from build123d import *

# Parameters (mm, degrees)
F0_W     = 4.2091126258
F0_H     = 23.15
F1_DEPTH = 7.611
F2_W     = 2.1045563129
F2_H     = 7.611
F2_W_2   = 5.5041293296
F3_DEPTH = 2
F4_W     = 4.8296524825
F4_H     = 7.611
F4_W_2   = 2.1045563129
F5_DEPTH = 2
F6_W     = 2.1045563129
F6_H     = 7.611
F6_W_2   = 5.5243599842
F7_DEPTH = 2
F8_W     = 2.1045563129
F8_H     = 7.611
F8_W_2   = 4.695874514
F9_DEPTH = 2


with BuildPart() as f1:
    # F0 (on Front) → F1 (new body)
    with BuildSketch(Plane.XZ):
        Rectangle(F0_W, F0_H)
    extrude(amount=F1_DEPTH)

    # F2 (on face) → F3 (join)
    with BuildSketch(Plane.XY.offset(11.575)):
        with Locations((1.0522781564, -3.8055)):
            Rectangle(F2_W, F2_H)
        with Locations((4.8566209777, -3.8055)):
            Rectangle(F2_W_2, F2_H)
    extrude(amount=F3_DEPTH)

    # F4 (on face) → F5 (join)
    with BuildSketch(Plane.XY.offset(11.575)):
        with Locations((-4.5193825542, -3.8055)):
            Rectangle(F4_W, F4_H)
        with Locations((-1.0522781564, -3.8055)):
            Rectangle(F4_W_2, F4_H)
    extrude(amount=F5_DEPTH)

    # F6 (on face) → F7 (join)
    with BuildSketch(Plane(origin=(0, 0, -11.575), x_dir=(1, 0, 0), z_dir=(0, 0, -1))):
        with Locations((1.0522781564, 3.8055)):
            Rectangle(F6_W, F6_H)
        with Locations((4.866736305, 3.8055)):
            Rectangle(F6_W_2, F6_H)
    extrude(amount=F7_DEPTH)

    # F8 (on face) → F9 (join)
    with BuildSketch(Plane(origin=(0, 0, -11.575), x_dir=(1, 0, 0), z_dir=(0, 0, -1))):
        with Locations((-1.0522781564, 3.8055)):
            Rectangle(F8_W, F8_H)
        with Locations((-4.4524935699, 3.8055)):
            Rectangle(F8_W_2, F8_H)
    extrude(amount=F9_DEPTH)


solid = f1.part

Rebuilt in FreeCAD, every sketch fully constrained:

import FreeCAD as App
import Part
import Sketcher
from FreeCAD import Vector


def add_polygon(sketch, points):
    """Adds a closed chain of lines whose ends are joined by coincident constraints."""
    first, n = sketch.GeometryCount, len(points)
    for a, b in zip(points, points[1:] + points[:1]):
        sketch.addGeometry(Part.LineSegment(App.Vector(*a, 0), App.Vector(*b, 0)), False)
    for i in range(n):
        sketch.addConstraint(Sketcher.Constraint("Coincident", first + i, 2, first + (i + 1) % n, 1))

doc = App.newDocument("Part")
body = doc.addObject("PartDesign::Body", "Body")

# Sketch on XZ plane
sketch1 = doc.addObject("Sketcher::SketchObject", "Sketch")
body.addObject(sketch1)
sketch1.AttachmentSupport = (doc.XZ_Plane, [""])
sketch1.MapMode = "FlatFace"
add_polygon(sketch1, [(-2.1, 11.6), (-2.1, -11.6), (2.1, -11.6), (2.1, 11.6)])  # lines 0-3
sketch1.addConstraint([
    Sketcher.Constraint("Vertical", 0),
    Sketcher.Constraint("Horizontal", 1),
    Sketcher.Constraint("Vertical", 2),
    Sketcher.Constraint("Horizontal", 3),
    Sketcher.Constraint("Symmetric", 0, 2, 2, 2, -1, 1),
    Sketcher.Constraint("DistanceY", 0, 2, 0, 1, 23.15),
    Sketcher.Constraint("DistanceX", 1, 1, 1, 2, 4.209113),
])
pad1 = doc.addObject("PartDesign::Pad", "Pad")
body.addObject(pad1)
pad1.Profile = sketch1
pad1.Length = 7.611

# Sketch on XY plane
sketch2 = doc.addObject("Sketcher::SketchObject", "Sketch001")
body.addObject(sketch2)
sketch2.AttachmentSupport = (doc.XY_Plane, [""])
sketch2.MapMode = "FlatFace"
sketch2.AttachmentOffset = App.Placement(Vector(0, 0, 11.575), App.Rotation())
add_polygon(sketch2, [(0, 0), (0, -8), (8, -8), (8, 0)])  # lines 0-3
sketch2.addConstraint([
    Sketcher.Constraint("Vertical", 0),
    Sketcher.Constraint("Horizontal", 1),
    Sketcher.Constraint("Vertical", 2),
    Sketcher.Constraint("Horizontal", 3),
    Sketcher.Constraint("Coincident", 3, 2, -1, 1),
    Sketcher.Constraint("DistanceY", 0, 2, 0, 1, 7.611),
    Sketcher.Constraint("DistanceX", 1, 1, 1, 2, 7.608686),
])
pad2 = doc.addObject("PartDesign::Pad", "Pad001")
body.addObject(pad2)
pad2.Profile = sketch2
pad2.Length = 2

# Sketch on XY plane
sketch3 = doc.addObject("Sketcher::SketchObject", "Sketch002")
body.addObject(sketch3)
sketch3.AttachmentSupport = (doc.XY_Plane, [""])
sketch3.MapMode = "FlatFace"
sketch3.AttachmentOffset = App.Placement(Vector(0, 0, 11.575), App.Rotation())
add_polygon(sketch3, [(-7, 0), (-7, -8), (0, -8), (0, 0)])  # lines 0-3
sketch3.addConstraint([
    Sketcher.Constraint("Vertical", 0),
    Sketcher.Constraint("Horizontal", 1),
    Sketcher.Constraint("Vertical", 2),
    Sketcher.Constraint("Horizontal", 3),
    Sketcher.Constraint("Coincident", 2, 2, -1, 1),
    Sketcher.Constraint("DistanceY", 0, 2, 0, 1, 7.611),
    Sketcher.Constraint("DistanceX", 1, 1, 1, 2, 6.934209),
])
pad3 = doc.addObject("PartDesign::Pad", "Pad002")
body.addObject(pad3)
pad3.Profile = sketch3
pad3.Length = 2

# Sketch on XY plane
sketch4 = doc.addObject("Sketcher::SketchObject", "Sketch003")
body.addObject(sketch4)
sketch4.AttachmentSupport = (doc.XY_Plane, [""])
sketch4.MapMode = "FlatFace"
sketch4.AttachmentOffset = App.Placement(Vector(0, 0, -11.575), App.Rotation())
add_polygon(sketch4, [(0, -8), (0, 0), (8, 0), (8, -8)])  # lines 0-3
sketch4.addConstraint([
    Sketcher.Constraint("Vertical", 0),
    Sketcher.Constraint("Horizontal", 1),
    Sketcher.Constraint("Vertical", 2),
    Sketcher.Constraint("Horizontal", 3),
    Sketcher.Constraint("Coincident", 0, 2, -1, 1),
    Sketcher.Constraint("DistanceY", 0, 1, 0, 2, 7.611),
    Sketcher.Constraint("DistanceX", 1, 1, 1, 2, 7.628916),
])
pad4 = doc.addObject("PartDesign::Pad", "Pad003")
body.addObject(pad4)
pad4.Profile = sketch4
pad4.Length = 2
pad4.Reversed = True

# Sketch on XY plane
sketch5 = doc.addObject("Sketcher::SketchObject", "Sketch004")
body.addObject(sketch5)
sketch5.AttachmentSupport = (doc.XY_Plane, [""])
sketch5.MapMode = "FlatFace"
sketch5.AttachmentOffset = App.Placement(Vector(0, 0, -11.575), App.Rotation())
add_polygon(sketch5, [(0, 0), (0, -8), (-7, -8), (-7, 0)])  # lines 0-3
sketch5.addConstraint([
    Sketcher.Constraint("Vertical", 0),
    Sketcher.Constraint("Horizontal", 1),
    Sketcher.Constraint("Vertical", 2),
    Sketcher.Constraint("Horizontal", 3),
    Sketcher.Constraint("Coincident", 3, 2, -1, 1),
    Sketcher.Constraint("DistanceY", 0, 2, 0, 1, 7.611),
    Sketcher.Constraint("DistanceX", 1, 2, 1, 1, 6.800431),
])
pad5 = doc.addObject("PartDesign::Pad", "Pad004")
body.addObject(pad5)
pad5.Profile = sketch5
pad5.Length = 2
pad5.Reversed = True

doc.recompute()
